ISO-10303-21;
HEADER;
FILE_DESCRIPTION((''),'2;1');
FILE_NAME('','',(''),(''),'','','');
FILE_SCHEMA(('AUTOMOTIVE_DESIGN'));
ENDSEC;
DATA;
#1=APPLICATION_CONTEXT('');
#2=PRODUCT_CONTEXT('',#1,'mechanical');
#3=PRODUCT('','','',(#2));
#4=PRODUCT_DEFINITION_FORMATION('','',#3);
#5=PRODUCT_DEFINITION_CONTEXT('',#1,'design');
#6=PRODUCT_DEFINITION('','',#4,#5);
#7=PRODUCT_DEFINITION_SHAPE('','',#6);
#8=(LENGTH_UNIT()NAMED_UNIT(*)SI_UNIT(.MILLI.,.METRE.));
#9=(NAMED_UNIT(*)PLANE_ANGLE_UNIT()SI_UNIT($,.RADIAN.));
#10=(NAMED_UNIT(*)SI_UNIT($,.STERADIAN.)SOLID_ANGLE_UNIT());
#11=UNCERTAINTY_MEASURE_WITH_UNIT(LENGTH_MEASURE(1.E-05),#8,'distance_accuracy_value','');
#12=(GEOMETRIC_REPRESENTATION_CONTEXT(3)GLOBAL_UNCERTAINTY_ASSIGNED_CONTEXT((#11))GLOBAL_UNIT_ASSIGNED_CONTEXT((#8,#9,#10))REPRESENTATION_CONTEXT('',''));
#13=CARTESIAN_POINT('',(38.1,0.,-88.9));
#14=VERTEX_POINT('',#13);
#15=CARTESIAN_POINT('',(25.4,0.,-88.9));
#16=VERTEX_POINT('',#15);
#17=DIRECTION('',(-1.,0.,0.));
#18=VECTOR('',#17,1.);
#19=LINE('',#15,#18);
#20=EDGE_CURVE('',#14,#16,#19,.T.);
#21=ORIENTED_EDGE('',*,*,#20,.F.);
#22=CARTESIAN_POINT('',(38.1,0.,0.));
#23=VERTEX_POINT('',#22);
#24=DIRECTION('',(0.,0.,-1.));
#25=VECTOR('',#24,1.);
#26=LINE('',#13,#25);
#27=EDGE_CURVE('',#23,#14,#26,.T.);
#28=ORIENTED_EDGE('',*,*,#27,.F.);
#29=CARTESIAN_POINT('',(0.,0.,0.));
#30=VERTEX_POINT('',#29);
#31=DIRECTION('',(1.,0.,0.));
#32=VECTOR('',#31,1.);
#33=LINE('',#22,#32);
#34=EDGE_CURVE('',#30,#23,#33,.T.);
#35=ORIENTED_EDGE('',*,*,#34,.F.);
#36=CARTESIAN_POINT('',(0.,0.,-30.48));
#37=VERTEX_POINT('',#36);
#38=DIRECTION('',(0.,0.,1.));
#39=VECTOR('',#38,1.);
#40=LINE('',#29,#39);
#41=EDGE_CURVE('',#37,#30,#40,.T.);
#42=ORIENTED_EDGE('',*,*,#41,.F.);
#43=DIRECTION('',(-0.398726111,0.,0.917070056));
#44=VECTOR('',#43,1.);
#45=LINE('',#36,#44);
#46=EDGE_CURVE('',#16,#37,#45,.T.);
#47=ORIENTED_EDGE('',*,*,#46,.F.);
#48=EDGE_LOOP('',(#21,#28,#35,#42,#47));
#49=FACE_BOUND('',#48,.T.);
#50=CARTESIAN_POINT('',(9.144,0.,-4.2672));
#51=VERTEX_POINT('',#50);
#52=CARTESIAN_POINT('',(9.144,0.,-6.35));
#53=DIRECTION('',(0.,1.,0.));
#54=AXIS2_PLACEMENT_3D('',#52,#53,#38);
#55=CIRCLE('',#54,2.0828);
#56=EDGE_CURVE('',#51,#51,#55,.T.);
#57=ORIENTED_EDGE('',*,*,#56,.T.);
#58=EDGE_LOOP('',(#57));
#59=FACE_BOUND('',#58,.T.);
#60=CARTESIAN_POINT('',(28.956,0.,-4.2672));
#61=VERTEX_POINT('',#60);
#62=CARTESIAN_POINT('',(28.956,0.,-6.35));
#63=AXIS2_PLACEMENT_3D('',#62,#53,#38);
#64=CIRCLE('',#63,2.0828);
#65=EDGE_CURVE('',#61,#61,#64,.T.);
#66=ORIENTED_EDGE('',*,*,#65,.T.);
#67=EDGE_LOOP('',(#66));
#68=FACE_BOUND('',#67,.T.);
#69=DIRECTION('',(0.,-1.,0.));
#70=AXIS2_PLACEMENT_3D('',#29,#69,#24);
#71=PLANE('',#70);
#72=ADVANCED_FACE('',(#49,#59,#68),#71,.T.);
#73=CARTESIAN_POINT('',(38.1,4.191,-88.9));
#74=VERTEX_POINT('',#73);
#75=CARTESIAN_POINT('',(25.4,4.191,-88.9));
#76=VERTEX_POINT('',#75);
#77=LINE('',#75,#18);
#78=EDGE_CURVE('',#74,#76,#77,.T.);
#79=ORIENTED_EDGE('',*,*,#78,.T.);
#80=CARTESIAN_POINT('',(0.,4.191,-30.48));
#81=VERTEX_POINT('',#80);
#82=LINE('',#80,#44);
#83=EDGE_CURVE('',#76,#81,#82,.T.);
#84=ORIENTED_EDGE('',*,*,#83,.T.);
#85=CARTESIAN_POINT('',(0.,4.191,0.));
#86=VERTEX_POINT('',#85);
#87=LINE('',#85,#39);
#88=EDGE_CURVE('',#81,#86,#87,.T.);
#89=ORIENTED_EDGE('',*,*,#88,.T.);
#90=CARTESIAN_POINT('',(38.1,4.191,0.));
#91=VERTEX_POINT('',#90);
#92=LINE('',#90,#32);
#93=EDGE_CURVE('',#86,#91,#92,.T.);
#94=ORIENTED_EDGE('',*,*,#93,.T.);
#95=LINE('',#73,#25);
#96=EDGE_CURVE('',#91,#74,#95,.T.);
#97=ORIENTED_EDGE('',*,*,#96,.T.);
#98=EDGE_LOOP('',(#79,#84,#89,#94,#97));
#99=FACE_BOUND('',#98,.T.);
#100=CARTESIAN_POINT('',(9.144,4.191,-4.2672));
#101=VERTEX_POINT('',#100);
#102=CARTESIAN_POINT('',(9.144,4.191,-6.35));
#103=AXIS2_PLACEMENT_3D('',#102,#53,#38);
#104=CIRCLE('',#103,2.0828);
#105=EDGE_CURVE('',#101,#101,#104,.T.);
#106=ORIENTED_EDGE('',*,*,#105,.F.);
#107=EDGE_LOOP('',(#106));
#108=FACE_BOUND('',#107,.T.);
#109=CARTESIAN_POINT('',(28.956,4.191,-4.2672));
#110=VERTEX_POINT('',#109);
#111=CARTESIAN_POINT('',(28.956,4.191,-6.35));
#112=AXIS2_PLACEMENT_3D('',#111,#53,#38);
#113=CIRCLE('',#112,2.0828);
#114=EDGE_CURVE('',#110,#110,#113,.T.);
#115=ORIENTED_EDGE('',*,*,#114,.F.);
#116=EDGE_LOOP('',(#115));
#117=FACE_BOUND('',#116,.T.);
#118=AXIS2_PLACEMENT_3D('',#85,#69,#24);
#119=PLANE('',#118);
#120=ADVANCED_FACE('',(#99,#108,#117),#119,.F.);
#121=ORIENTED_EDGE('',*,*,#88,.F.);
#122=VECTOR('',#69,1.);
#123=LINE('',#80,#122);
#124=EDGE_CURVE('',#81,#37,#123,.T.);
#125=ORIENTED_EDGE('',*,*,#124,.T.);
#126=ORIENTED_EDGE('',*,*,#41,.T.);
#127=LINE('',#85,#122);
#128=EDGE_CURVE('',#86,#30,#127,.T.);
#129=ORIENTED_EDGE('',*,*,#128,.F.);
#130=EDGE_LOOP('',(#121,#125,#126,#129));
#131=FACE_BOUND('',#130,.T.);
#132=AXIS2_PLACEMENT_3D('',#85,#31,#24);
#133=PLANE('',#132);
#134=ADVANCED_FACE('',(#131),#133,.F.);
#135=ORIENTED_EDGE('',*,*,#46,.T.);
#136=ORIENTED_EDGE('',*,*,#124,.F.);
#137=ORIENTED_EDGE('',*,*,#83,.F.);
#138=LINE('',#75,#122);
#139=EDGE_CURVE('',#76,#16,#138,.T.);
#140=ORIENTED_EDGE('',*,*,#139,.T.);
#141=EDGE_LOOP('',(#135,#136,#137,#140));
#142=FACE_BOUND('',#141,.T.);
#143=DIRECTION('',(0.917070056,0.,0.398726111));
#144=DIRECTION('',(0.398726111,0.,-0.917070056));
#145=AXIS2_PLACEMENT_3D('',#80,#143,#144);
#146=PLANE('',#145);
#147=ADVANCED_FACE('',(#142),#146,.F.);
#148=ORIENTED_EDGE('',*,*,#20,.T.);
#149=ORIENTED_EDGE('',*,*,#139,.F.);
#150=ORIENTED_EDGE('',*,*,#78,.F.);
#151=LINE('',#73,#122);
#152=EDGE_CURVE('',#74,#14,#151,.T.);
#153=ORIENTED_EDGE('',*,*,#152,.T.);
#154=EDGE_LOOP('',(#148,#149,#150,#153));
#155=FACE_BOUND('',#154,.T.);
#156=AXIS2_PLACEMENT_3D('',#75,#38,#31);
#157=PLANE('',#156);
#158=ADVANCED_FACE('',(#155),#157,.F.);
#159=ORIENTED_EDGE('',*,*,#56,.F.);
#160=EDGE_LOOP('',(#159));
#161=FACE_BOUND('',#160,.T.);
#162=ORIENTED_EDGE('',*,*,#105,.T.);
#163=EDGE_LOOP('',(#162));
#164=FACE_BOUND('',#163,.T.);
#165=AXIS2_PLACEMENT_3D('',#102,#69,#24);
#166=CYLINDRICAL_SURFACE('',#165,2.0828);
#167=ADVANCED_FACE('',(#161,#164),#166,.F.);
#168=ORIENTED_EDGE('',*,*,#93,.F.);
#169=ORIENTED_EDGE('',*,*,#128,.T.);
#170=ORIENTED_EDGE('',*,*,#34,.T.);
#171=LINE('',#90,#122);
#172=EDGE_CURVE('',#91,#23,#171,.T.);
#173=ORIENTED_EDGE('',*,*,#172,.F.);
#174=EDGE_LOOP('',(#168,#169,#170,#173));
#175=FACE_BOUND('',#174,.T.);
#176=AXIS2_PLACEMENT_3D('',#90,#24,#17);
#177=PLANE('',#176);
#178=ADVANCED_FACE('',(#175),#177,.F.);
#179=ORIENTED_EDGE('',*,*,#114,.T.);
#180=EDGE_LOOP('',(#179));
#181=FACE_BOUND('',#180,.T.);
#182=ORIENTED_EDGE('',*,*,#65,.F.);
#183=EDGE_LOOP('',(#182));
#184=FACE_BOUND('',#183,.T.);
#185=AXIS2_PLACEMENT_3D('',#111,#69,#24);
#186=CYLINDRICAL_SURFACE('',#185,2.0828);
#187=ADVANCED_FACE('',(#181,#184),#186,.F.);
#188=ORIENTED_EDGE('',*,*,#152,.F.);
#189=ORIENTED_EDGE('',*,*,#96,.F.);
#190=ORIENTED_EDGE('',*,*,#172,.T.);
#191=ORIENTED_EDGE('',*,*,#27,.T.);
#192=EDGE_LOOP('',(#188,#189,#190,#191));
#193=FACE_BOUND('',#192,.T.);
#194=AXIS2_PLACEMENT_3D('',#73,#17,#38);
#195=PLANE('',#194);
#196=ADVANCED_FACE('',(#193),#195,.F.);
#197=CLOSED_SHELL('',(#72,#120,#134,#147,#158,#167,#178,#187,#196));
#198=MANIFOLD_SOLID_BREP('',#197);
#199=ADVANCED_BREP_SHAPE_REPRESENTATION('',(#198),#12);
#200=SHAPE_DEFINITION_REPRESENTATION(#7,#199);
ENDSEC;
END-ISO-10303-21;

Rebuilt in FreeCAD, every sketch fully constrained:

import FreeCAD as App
import Part
import Sketcher
from FreeCAD import Vector
Q = App.Units.Quantity


def add_polygon(sketch, points):
    """Adds a closed chain of lines whose ends are joined by coincident constraints."""
    first, n = sketch.GeometryCount, len(points)
    for a, b in zip(points, points[1:] + points[:1]):
        sketch.addGeometry(Part.LineSegment(App.Vector(*a, 0), App.Vector(*b, 0)), False)
    for i in range(n):
        sketch.addConstraint(Sketcher.Constraint("Coincident", first + i, 2, first + (i + 1) % n, 1))

doc = App.newDocument("Part")
params = doc.addObject("Spreadsheet::Sheet", "Params")
for row, (alias, value) in enumerate([
    ("sketch1_diameter", "0.164 in"),
    ("sketch1_width", "1.5 in"),
    ("sketch1_width2", "0.5 in"),
    ("sketch1_height", "1.2 in"),
    ("sketch1_height2", "3.5 in"),
    ("pad1_length", "0.165 in"),
], start=1):
    params.set(f"A{row}", alias)
    params.set(f"B{row}", "=" + value)
    params.setAlias(f"B{row}", alias)

body = doc.addObject("PartDesign::Body", "Body")

# Sketch on XZ plane
sketch1 = doc.addObject("Sketcher::SketchObject", "Sketch")
body.addObject(sketch1)
sketch1.AttachmentSupport = (doc.XZ_Plane, [""])
sketch1.MapMode = "FlatFace"
add_polygon(sketch1, [(0, -30.48), (0, 0), (38.1, 0), (38.1, -88.9), (25.4, -88.9)])  # lines 0-4
sketch1.addGeometry(Part.Circle(Vector(28.956, -6.35, 0), Vector(0, 0, 1), 2.0828), False)  # 5
sketch1.addGeometry(Part.Circle(Vector(9.144, -6.35, 0), Vector(0, 0, 1), 2.0828), False)  # 6
sketch1.addConstraint([
    Sketcher.Constraint("Vertical", 0),
    Sketcher.Constraint("Horizontal", 1),
    Sketcher.Constraint("Vertical", 2),
    Sketcher.Constraint("Horizontal", 3),
    Sketcher.Constraint("Coincident", 0, 2, -1, 1),
    Sketcher.Constraint("Equal", 5, 6),
    Sketcher.Constraint("Horizontal", 5, 3, 6, 3),
    Sketcher.Constraint("Diameter", 5, Q("0.164 in")),
    Sketcher.Constraint("DistanceX", 1, 1, 1, 2, Q("1.5 in")),
    Sketcher.Constraint("DistanceX", 3, 2, 3, 1, Q("0.5 in")),
    Sketcher.Constraint("DistanceY", 0, 1, 0, 2, Q("1.2 in")),
    Sketcher.Constraint("DistanceY", 2, 2, 2, 1, Q("3.5 in")),
    Sketcher.Constraint("DistanceX", -1, 1, 5, 3, Q("1.14 in")),
    Sketcher.Constraint("DistanceY", 5, 3, -1, 1, Q("0.25 in")),
    Sketcher.Constraint("DistanceX", -1, 1, 6, 3, Q("0.36 in")),
])
sketch1.setExpression("Constraints[12]", "Params.sketch1_diameter")
sketch1.setExpression("Constraints[13]", "Params.sketch1_width")
sketch1.setExpression("Constraints[14]", "Params.sketch1_width2")
sketch1.setExpression("Constraints[15]", "Params.sketch1_height")
sketch1.setExpression("Constraints[16]", "Params.sketch1_height2")
pad1 = doc.addObject("PartDesign::Pad", "Pad")
body.addObject(pad1)
pad1.Profile = sketch1
pad1.setExpression("Length", "Params.pad1_length")
pad1.Reversed = True

doc.recompute()
